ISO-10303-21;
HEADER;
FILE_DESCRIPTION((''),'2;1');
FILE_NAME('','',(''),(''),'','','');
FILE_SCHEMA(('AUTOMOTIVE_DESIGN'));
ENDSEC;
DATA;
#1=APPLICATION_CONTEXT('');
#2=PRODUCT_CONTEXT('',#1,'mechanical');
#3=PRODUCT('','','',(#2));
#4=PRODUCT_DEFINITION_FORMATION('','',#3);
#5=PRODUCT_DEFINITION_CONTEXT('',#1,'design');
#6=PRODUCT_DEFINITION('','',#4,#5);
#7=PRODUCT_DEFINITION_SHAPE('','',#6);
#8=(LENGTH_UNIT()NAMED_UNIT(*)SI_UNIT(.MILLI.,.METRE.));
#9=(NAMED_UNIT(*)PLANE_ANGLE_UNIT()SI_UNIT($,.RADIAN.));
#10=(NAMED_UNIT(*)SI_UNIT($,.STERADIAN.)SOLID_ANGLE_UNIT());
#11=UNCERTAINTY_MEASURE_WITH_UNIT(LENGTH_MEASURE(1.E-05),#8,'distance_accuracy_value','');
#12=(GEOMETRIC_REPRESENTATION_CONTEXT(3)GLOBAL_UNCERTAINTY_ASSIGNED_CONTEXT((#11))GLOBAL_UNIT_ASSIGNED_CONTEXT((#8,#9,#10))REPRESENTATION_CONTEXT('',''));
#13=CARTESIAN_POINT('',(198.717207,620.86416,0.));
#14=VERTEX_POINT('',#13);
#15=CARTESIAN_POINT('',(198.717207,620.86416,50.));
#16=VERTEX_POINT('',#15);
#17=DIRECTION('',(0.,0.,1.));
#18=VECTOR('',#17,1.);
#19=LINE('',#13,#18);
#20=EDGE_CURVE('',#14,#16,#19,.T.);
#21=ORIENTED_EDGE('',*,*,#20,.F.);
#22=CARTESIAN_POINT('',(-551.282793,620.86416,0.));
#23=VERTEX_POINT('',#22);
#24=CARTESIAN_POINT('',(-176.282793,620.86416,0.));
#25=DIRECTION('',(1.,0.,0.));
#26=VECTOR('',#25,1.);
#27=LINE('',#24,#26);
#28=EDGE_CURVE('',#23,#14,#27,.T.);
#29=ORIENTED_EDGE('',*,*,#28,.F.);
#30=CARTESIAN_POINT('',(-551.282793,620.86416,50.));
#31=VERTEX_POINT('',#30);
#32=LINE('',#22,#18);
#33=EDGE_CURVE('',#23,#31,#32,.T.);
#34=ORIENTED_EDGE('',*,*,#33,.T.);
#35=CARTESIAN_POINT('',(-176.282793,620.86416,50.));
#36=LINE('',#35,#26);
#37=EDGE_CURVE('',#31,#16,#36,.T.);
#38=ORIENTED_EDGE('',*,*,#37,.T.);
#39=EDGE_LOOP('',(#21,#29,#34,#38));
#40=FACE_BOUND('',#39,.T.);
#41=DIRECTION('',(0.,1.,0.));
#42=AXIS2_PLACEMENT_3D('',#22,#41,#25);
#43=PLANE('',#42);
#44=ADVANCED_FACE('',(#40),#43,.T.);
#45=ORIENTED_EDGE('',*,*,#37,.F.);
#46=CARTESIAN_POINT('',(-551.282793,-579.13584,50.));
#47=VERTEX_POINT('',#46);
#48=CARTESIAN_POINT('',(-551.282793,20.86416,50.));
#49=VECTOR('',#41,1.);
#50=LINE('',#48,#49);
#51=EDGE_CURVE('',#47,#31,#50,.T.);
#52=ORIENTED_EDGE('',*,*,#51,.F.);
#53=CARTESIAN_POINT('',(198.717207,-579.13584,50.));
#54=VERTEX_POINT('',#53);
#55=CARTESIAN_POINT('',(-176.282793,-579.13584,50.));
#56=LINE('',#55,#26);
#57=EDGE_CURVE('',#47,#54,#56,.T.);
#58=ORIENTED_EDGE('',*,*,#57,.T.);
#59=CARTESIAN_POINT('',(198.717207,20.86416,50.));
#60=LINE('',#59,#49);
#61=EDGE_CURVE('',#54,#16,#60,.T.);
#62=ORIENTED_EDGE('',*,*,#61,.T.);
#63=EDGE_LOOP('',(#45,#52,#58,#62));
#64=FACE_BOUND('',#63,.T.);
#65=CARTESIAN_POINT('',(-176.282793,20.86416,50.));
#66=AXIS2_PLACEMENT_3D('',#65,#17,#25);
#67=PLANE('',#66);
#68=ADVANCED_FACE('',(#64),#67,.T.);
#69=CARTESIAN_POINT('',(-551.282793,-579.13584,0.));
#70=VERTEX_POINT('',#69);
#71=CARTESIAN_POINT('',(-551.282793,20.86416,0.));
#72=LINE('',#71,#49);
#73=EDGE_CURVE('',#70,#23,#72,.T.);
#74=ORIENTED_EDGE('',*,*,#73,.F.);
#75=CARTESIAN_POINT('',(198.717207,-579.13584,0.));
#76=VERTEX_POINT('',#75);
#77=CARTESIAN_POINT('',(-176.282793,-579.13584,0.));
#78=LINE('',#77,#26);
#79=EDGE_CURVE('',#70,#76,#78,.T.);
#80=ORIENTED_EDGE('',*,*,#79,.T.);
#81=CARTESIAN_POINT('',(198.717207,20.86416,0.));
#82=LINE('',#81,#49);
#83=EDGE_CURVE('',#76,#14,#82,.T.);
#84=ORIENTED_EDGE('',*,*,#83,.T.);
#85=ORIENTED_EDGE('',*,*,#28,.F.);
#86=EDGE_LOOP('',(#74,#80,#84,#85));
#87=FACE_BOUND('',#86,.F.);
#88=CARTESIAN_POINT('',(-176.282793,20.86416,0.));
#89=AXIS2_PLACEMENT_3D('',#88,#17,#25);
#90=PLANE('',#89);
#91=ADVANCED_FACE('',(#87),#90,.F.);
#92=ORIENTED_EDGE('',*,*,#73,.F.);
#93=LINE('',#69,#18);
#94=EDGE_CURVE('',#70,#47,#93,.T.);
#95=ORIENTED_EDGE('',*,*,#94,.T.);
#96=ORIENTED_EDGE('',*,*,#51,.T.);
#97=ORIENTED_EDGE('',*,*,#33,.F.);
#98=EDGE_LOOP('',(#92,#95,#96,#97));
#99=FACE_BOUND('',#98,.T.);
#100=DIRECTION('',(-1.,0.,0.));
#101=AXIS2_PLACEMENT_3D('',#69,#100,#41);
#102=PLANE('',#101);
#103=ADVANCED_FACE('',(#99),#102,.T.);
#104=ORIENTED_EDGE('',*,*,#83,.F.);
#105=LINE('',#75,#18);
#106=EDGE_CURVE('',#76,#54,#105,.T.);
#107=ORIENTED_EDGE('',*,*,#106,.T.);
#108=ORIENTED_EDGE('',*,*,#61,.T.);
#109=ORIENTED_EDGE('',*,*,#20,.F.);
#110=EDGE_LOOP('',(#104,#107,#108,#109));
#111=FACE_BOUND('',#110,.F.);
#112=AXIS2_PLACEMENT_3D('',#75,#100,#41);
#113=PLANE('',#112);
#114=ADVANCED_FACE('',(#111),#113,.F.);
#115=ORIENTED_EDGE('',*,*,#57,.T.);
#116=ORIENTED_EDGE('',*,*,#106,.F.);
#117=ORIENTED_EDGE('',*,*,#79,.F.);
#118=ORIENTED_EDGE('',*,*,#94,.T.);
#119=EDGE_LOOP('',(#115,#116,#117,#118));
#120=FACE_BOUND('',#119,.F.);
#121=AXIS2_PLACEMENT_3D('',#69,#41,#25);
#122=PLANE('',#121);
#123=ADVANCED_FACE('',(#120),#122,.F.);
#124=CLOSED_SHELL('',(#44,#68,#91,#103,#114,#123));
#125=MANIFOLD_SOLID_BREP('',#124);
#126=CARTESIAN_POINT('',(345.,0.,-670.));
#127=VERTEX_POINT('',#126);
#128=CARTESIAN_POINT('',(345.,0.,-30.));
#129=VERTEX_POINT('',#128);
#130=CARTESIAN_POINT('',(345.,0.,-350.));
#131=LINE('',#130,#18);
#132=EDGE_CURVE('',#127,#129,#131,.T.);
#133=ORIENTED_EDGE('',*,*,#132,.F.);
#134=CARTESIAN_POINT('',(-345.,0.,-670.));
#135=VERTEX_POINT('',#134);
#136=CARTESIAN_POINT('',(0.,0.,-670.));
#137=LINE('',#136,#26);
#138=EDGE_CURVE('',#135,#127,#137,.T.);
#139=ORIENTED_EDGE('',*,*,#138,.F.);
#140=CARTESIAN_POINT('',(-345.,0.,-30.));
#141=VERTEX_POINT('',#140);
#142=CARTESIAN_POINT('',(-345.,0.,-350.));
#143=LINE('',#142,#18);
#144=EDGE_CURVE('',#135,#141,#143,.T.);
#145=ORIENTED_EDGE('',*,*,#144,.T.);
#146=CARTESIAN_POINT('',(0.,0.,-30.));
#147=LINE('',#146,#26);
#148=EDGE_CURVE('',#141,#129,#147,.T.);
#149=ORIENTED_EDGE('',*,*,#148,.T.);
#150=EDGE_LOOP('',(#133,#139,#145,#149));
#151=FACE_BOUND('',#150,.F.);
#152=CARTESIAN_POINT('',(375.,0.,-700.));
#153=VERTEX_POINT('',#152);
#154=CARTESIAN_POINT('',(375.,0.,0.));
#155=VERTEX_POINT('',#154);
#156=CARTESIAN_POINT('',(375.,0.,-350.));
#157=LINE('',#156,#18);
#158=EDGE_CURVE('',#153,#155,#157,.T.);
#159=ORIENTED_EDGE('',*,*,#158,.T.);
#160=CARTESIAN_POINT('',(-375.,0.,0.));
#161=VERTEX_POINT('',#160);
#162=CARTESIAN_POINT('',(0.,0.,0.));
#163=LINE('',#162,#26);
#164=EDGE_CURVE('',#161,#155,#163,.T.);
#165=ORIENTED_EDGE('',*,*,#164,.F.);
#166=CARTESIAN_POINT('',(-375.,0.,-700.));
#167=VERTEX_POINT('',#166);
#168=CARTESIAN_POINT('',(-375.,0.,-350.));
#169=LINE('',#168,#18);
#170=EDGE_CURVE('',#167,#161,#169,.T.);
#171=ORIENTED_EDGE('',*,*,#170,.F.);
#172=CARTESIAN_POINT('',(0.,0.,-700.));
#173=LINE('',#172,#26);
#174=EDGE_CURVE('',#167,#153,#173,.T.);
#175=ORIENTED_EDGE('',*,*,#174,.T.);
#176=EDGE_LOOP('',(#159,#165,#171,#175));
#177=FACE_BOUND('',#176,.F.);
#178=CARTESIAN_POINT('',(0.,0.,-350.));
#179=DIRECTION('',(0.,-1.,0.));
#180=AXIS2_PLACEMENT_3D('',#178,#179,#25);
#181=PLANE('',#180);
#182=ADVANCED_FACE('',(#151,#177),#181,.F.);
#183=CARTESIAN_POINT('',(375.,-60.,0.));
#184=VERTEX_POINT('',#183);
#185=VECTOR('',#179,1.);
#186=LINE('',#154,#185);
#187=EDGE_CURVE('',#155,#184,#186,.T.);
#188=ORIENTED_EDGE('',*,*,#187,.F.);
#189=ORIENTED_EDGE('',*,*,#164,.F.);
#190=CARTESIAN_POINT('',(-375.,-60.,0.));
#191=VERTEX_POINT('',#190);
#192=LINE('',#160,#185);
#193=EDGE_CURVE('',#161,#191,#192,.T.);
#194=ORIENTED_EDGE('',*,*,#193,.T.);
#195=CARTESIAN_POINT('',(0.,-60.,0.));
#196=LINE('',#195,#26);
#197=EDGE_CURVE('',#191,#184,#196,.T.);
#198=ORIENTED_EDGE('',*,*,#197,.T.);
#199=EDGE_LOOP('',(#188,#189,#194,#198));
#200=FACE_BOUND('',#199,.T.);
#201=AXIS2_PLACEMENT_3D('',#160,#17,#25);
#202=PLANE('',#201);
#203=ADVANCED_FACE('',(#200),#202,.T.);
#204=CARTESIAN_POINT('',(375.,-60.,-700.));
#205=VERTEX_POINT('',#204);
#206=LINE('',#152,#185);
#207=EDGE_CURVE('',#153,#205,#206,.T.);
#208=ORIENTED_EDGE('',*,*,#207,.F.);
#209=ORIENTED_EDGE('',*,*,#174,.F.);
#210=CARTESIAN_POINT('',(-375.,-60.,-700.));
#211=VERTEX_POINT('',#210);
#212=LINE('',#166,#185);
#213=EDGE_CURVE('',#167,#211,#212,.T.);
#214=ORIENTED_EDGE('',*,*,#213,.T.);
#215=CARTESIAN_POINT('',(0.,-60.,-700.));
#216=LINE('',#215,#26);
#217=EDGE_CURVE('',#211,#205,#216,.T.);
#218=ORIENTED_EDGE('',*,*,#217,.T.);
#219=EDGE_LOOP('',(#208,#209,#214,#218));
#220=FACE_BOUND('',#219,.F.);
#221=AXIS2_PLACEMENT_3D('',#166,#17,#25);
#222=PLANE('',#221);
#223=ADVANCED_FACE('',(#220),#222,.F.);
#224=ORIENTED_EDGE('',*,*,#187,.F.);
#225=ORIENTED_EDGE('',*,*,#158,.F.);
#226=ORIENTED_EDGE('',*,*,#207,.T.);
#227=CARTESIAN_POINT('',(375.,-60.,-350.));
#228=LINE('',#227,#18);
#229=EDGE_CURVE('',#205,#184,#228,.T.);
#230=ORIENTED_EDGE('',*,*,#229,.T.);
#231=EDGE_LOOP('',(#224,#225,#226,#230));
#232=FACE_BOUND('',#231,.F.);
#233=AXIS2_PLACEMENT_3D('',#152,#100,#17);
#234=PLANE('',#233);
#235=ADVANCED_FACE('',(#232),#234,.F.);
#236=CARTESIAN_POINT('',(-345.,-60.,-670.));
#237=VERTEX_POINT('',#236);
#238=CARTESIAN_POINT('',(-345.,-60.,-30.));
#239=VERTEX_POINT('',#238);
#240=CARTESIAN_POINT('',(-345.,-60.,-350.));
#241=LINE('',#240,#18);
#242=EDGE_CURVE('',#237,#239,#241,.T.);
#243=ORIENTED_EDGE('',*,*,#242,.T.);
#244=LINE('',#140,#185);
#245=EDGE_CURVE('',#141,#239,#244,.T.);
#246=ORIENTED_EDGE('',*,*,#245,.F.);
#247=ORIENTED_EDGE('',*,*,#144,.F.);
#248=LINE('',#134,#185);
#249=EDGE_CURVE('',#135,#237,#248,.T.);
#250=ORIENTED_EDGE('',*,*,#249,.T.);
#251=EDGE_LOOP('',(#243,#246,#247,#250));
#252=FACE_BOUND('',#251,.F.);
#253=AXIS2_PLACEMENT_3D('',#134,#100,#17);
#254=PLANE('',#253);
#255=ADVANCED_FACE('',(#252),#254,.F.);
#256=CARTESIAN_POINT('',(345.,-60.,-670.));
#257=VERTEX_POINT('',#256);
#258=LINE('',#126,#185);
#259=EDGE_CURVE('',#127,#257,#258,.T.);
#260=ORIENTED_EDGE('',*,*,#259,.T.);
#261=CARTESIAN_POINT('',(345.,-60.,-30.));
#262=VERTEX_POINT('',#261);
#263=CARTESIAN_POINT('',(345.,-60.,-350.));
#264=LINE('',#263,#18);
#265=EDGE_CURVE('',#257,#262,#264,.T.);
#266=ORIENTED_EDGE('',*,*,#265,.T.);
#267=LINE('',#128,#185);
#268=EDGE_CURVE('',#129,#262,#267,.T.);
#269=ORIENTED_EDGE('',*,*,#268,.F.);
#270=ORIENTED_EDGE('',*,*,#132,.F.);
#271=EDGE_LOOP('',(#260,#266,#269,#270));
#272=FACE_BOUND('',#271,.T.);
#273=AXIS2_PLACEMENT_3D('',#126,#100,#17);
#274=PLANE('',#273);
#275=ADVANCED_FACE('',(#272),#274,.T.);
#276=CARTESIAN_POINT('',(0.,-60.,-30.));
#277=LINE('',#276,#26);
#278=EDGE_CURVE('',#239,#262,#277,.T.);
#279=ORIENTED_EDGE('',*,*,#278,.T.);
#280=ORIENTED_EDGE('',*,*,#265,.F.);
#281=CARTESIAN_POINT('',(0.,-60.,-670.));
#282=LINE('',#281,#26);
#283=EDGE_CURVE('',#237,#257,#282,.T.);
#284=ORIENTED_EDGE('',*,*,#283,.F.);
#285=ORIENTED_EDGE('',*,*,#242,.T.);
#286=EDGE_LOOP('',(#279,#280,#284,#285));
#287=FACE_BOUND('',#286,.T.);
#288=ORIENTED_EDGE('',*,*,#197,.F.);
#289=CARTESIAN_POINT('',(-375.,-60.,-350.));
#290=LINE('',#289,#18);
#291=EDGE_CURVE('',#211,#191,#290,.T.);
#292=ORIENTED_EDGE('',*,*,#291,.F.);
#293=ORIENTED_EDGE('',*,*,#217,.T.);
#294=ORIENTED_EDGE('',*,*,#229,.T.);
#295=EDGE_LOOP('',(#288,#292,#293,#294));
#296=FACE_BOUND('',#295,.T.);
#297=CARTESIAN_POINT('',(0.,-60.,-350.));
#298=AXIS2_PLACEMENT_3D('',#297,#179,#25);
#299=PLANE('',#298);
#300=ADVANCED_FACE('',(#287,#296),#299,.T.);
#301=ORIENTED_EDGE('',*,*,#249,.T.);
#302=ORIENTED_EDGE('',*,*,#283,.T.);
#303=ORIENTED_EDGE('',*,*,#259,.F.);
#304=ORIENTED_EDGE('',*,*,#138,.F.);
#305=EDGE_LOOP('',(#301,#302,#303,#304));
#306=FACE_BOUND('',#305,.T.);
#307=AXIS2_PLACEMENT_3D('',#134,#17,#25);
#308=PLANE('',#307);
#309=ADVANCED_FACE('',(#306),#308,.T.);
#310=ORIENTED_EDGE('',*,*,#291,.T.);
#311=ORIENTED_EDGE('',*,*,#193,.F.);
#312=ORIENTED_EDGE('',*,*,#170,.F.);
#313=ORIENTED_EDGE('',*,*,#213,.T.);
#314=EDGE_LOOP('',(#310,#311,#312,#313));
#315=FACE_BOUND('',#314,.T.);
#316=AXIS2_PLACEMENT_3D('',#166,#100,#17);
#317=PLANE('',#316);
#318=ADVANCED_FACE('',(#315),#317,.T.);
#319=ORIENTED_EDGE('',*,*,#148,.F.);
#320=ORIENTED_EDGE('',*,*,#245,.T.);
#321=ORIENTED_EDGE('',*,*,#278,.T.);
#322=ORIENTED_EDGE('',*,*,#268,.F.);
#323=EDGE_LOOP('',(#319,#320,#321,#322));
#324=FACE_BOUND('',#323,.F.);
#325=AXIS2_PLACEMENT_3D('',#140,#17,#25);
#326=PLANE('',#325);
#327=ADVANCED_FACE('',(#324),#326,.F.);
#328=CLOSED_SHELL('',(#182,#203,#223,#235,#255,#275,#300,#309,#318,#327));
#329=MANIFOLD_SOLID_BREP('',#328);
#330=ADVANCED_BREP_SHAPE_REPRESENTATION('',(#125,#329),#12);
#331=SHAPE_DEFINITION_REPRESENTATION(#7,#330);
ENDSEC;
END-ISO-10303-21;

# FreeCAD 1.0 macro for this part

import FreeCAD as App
import Part
import Sketcher

V = App.Vector

doc = App.newDocument("Part")
body = doc.addObject("PartDesign::Body", "Body")

sketch1 = body.newObject("Sketcher::SketchObject", "Sketch")
sketch1.AttachmentSupport = (doc.getObject("XZ_Plane"), [""])
sketch1.MapMode = "FlatFace"
sketch1.addGeometry(Part.LineSegment(V(-375, 0, 0), V(-375, -700, 0)), False)
sketch1.addGeometry(Part.LineSegment(V(-375, -700, 0), V(375, -700, 0)), False)
sketch1.addGeometry(Part.LineSegment(V(375, -700, 0), V(375, 0, 0)), False)
sketch1.addGeometry(Part.LineSegment(V(375, 0, 0), V(-375, 0, 0)), False)
sketch1.addGeometry(Part.LineSegment(V(345, -670, 0), V(-345, -670, 0)), False)
sketch1.addGeometry(Part.LineSegment(V(-345, -670, 0), V(-345, -30, 0)), False)
sketch1.addGeometry(Part.LineSegment(V(-345, -30, 0), V(345, -30, 0)), False)
sketch1.addGeometry(Part.LineSegment(V(345, -30, 0), V(345, -670, 0)), False)
sketch1.addConstraint(Sketcher.Constraint("Coincident", 0, 2, 1, 1))
sketch1.addConstraint(Sketcher.Constraint("Coincident", 1, 2, 2, 1))
sketch1.addConstraint(Sketcher.Constraint("Coincident", 2, 2, 3, 1))
sketch1.addConstraint(Sketcher.Constraint("Coincident", 3, 2, 0, 1))
sketch1.addConstraint(Sketcher.Constraint("Coincident", 4, 2, 5, 1))
sketch1.addConstraint(Sketcher.Constraint("Coincident", 5, 2, 6, 1))
sketch1.addConstraint(Sketcher.Constraint("Coincident", 6, 2, 7, 1))
sketch1.addConstraint(Sketcher.Constraint("Coincident", 7, 2, 4, 1))
sketch1.addConstraint(Sketcher.Constraint("Vertical", 0))
sketch1.addConstraint(Sketcher.Constraint("Horizontal", 1))
sketch1.addConstraint(Sketcher.Constraint("Vertical", 2))
sketch1.addConstraint(Sketcher.Constraint("Horizontal", 3))
sketch1.addConstraint(Sketcher.Constraint("Horizontal", 4))
sketch1.addConstraint(Sketcher.Constraint("Vertical", 5))
sketch1.addConstraint(Sketcher.Constraint("Horizontal", 6))
sketch1.addConstraint(Sketcher.Constraint("Vertical", 7))
sketch1.addConstraint(Sketcher.Constraint("Symmetric", 2, 2, 3, 2, -1, 1))
sketch1.addConstraint(Sketcher.Constraint("DistanceX", 1, 1, 1, 2, 750.0))
sketch1.addConstraint(Sketcher.Constraint("DistanceX", 4, 2, 4, 1, 690.0))
sketch1.addConstraint(Sketcher.Constraint("DistanceY", 0, 2, 0, 1, 700.0))
sketch1.addConstraint(Sketcher.Constraint("DistanceY", 5, 1, 5, 2, 640.0))
sketch1.addConstraint(Sketcher.Constraint("DistanceX", 4, 2, -1, 1, 345.0))
sketch1.addConstraint(Sketcher.Constraint("DistanceY", 4, 2, -1, 1, 670.0))
pad1 = body.newObject("PartDesign::Pad", "Pad")
pad1.Profile = sketch1
pad1.Length = 60
body2 = doc.addObject("PartDesign::Body", "Body001")

sketch2 = body2.newObject("Sketcher::SketchObject", "Sketch001")
sketch2.AttachmentSupport = (doc.getObject("XY_Plane001"), [""])
sketch2.MapMode = "FlatFace"
sketch2.addGeometry(Part.LineSegment(V(-551, 621, 0), V(-551, -579, 0)), False)
sketch2.addGeometry(Part.LineSegment(V(-551, -579, 0), V(199, -579, 0)), False)
sketch2.addGeometry(Part.LineSegment(V(199, -579, 0), V(199, 621, 0)), False)
sketch2.addGeometry(Part.LineSegment(V(199, 621, 0), V(-551, 621, 0)), False)
sketch2.addConstraint(Sketcher.Constraint("Coincident", 0, 2, 1, 1))
sketch2.addConstraint(Sketcher.Constraint("Coincident", 1, 2, 2, 1))
sketch2.addConstraint(Sketcher.Constraint("Coincident", 2, 2, 3, 1))
sketch2.addConstraint(Sketcher.Constraint("Coincident", 3, 2, 0, 1))
sketch2.addConstraint(Sketcher.Constraint("Vertical", 0))
sketch2.addConstraint(Sketcher.Constraint("Horizontal", 1))
sketch2.addConstraint(Sketcher.Constraint("Vertical", 2))
sketch2.addConstraint(Sketcher.Constraint("Horizontal", 3))
sketch2.addConstraint(Sketcher.Constraint("DistanceX", 1, 1, 1, 2, 750.0))
sketch2.addConstraint(Sketcher.Constraint("DistanceY", 0, 2, 0, 1, 1200.0))
sketch2.addConstraint(Sketcher.Constraint("DistanceY", 0, 2, -1, 1, 579.13584))
sketch2.addConstraint(Sketcher.Constraint("DistanceX", 0, 2, -1, 1, 551.282793))
pad2 = body2.newObject("PartDesign::Pad", "Pad001")
pad2.Profile = sketch2
pad2.Length = 50

doc.recompute()
